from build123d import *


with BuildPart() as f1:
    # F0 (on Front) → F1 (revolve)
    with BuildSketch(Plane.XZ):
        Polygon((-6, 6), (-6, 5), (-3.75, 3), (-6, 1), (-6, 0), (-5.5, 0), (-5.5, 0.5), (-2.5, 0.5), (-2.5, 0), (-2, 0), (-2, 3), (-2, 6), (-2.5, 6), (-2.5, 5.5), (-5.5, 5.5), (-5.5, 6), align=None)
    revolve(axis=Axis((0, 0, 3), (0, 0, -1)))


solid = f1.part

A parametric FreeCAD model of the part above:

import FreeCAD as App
import Part
import Sketcher
from FreeCAD import Vector

doc = App.newDocument("Part")
body = doc.addObject("PartDesign::Body", "Body")

sketch1 = body.newObject("Sketcher::SketchObject", "Sketch")
sketch1.AttachmentSupport = (doc.getObject("XZ_Plane"), [""])
sketch1.MapMode = "FlatFace"
sketch1.addGeometry([
    Part.LineSegment(Vector(-6, 6, 0), Vector(-6, 5, 0)),
    Part.LineSegment(Vector(-6, 5, 0), Vector(-3.75, 3, 0)),
    Part.LineSegment(Vector(-3.75, 3, 0), Vector(-6, 1, 0)),
    Part.LineSegment(Vector(-6, 1, 0), Vector(-6, 0, 0)),
    Part.LineSegment(Vector(-6, 0, 0), Vector(-5.5, 0, 0)),
    Part.LineSegment(Vector(-5.5, 0, 0), Vector(-5.5, 0.5, 0)),
    Part.LineSegment(Vector(-5.5, 0.5, 0), Vector(-2.5, 0.5, 0)),
    Part.LineSegment(Vector(-2.5, 0.5, 0), Vector(-2.5, 0, 0)),
    Part.LineSegment(Vector(-2.5, 0, 0), Vector(-2, 0, 0)),
    Part.LineSegment(Vector(-2, 0, 0), Vector(-2, 6, 0)),
    Part.LineSegment(Vector(-2, 6, 0), Vector(-2.5, 6, 0)),
    Part.LineSegment(Vector(-2.5, 6, 0), Vector(-2.5, 5.5, 0)),
    Part.LineSegment(Vector(-2.5, 5.5, 0), Vector(-5.5, 5.5, 0)),
    Part.LineSegment(Vector(-5.5, 5.5, 0), Vector(-5.5, 6, 0)),
    Part.LineSegment(Vector(-5.5, 6, 0), Vector(-6, 6, 0)),
], False)
sketch1.addConstraint([
    Sketcher.Constraint("Coincident", 0, 2, 1, 1),
    Sketcher.Constraint("Coincident", 1, 2, 2, 1),
    Sketcher.Constraint("Coincident", 2, 2, 3, 1),
    Sketcher.Constraint("Coincident", 3, 2, 4, 1),
    Sketcher.Constraint("Coincident", 4, 2, 5, 1),
    Sketcher.Constraint("Coincident", 5, 2, 6, 1),
    Sketcher.Constraint("Coincident", 6, 2, 7, 1),
    Sketcher.Constraint("Coincident", 7, 2, 8, 1),
    Sketcher.Constraint("Coincident", 8, 2, 9, 1),
    Sketcher.Constraint("Coincident", 9, 2, 10, 1),
    Sketcher.Constraint("Coincident", 10, 2, 11, 1),
    Sketcher.Constraint("Coincident", 11, 2, 12, 1),
    Sketcher.Constraint("Coincident", 12, 2, 13, 1),
    Sketcher.Constraint("Coincident", 13, 2, 14, 1),
    Sketcher.Constraint("Coincident", 14, 2, 0, 1),
    Sketcher.Constraint("Vertical", 0),
    Sketcher.Constraint("Vertical", 3),
    Sketcher.Constraint("Horizontal", 4),
    Sketcher.Constraint("Vertical", 5),
    Sketcher.Constraint("Horizontal", 6),
    Sketcher.Constraint("Vertical", 7),
    Sketcher.Constraint("Horizontal", 8),
    Sketcher.Constraint("Vertical", 9),
    Sketcher.Constraint("Horizontal", 10),
    Sketcher.Constraint("Vertical", 11),
    Sketcher.Constraint("Horizontal", 12),
    Sketcher.Constraint("Vertical", 13),
    Sketcher.Constraint("Horizontal", 14),
    Sketcher.Constraint("PointOnObject", 3, 2, -1),
    Sketcher.Constraint("PointOnObject", 7, 2, -1),
    Sketcher.Constraint("Horizontal", 10, 2, 13, 2),
    Sketcher.Constraint("Vertical", 0, 2, 2, 2),
    Sketcher.Constraint("Vertical", 7, 2, 10, 2),
    Sketcher.Constraint("Vertical", 5, 2, 12, 2),
    Sketcher.Constraint("Equal", 4, 8),
    Sketcher.Constraint("Equal", 0, 3),
    Sketcher.Constraint("Equal", 14, 5),
    Sketcher.Constraint("Equal", 7, 11),
    Sketcher.Constraint("Equal", 1, 2),
    Sketcher.Constraint("DistanceX", 6, 1, 6, 2, 3.0),
    Sketcher.Constraint("DistanceY", 0, 2, 0, 1, 1.0),
    Sketcher.Constraint("DistanceY", 9, 1, 9, 2, 6.0),
    Sketcher.Constraint("DistanceX", 4, 1, 4, 2, 0.5),
    Sketcher.Constraint("DistanceX", 0, 2, -1, 1, 6.0),
    Sketcher.Constraint("DistanceX", 1, 2, -1, 1, 3.75),
])
revolution = body.newObject("PartDesign::Revolution", "Revolution")
revolution.Profile = sketch1
revolution.ReferenceAxis = (sketch1, ["V_Axis"])
revolution.Angle = 360

doc.recompute()
